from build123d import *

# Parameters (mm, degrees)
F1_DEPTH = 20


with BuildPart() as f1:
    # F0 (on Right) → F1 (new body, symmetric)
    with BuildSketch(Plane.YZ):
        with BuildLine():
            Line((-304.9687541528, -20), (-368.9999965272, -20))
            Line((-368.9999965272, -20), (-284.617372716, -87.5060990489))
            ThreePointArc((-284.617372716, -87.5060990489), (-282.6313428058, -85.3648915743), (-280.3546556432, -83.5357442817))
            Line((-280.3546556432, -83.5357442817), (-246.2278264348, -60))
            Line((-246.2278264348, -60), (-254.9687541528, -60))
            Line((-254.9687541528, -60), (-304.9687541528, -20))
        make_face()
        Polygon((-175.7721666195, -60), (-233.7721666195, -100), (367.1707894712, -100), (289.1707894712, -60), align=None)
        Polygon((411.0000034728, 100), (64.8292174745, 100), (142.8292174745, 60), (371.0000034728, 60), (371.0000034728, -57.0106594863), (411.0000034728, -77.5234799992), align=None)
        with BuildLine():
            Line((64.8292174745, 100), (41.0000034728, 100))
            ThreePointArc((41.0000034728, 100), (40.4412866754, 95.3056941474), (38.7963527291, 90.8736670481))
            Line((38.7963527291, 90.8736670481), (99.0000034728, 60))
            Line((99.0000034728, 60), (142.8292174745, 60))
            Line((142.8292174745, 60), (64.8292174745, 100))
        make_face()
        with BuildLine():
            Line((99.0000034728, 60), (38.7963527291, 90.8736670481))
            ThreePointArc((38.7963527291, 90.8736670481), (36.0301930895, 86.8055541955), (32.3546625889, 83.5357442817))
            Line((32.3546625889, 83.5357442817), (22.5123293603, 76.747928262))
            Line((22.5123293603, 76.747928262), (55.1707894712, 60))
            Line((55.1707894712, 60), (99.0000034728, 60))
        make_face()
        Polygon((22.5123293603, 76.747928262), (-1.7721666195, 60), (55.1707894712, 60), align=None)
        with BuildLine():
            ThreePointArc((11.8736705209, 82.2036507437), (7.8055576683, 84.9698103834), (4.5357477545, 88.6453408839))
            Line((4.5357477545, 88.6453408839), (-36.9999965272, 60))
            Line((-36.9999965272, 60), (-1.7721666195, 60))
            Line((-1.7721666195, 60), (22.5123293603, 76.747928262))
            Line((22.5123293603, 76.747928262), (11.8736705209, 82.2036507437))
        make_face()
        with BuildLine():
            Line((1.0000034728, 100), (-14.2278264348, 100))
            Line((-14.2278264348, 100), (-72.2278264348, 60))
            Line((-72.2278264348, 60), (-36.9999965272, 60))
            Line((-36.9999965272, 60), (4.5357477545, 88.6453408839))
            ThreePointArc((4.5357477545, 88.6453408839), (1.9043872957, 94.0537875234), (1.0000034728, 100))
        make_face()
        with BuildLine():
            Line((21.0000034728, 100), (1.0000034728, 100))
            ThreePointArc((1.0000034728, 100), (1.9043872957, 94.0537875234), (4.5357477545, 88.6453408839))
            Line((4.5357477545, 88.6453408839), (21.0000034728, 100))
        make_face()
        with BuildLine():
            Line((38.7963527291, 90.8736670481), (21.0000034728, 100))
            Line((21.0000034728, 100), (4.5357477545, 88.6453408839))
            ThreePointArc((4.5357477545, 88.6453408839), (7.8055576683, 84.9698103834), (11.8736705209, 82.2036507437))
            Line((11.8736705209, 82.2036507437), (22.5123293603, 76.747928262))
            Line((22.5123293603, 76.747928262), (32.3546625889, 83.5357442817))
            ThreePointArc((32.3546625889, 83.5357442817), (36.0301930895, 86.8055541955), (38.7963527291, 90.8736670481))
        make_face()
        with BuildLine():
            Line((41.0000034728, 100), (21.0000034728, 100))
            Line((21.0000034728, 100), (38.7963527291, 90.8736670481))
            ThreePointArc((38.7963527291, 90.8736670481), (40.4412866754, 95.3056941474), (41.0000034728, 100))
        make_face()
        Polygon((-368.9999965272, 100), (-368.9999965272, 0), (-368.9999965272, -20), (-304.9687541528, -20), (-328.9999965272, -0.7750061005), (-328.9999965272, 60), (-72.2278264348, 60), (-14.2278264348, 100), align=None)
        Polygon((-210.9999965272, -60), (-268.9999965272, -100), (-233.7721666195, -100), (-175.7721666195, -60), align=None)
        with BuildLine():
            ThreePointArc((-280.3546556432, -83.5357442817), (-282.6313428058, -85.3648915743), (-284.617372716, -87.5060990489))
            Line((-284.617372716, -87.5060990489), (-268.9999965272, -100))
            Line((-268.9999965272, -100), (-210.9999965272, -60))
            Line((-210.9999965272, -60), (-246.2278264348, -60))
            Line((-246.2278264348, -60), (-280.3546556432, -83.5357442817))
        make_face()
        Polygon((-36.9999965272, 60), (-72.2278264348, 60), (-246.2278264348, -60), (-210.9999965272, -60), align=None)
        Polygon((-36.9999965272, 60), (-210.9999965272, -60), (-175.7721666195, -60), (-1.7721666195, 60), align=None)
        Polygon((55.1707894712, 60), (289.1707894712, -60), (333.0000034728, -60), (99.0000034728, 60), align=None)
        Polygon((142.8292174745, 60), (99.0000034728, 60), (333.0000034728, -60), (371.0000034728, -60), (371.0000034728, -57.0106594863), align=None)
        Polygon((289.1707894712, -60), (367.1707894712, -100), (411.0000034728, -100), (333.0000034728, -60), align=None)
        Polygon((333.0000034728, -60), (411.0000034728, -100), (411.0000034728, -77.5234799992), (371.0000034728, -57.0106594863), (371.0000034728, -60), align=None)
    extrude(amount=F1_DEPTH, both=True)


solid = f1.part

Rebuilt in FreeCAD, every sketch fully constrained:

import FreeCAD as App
import Part
import Sketcher

V = App.Vector

doc = App.newDocument("Part")
body = doc.addObject("PartDesign::Body", "Body")

sketch1 = doc.addObject("Sketcher::SketchObject", "Sketch")
body.addObject(sketch1)
sketch1.AttachmentSupport = (doc.YZ_Plane, [""])
sketch1.MapMode = "FlatFace"
sketch1.addGeometry([
    Part.LineSegment(V(-269, -100, 0), V(411, -100, 0)),
    Part.LineSegment(V(411, -100, 0), V(411, 100, 0)),
    Part.LineSegment(V(411, 100, 0), V(-369, 100, 0)),
    Part.LineSegment(V(-369, 100, 0), V(-369, -20, 0)),
    Part.LineSegment(V(-369, -20, 0), V(-285, -88, 0)),
    Part.LineSegment(V(-285, -88, 0), V(-269, -100, 0)),
    Part.LineSegment(V(-246, -60, 0), V(-255, -60, 0)),
    Part.LineSegment(V(-255, -60, 0), V(-329, -1, 0)),
    Part.LineSegment(V(-329, -1, 0), V(-329, 60, 0)),
    Part.LineSegment(V(-329, 60, 0), V(-72, 60, 0)),
    Part.LineSegment(V(-72, 60, 0), V(-246, -60, 0)),
    Part.LineSegment(V(55, 60, 0), V(289, -60, 0)),
    Part.LineSegment(V(289, -60, 0), V(-176, -60, 0)),
    Part.LineSegment(V(-176, -60, 0), V(-2, 60, 0)),
    Part.LineSegment(V(-2, 60, 0), V(55, 60, 0)),
    Part.LineSegment(V(371, 60, 0), V(371, -57, 0)),
    Part.LineSegment(V(371, -57, 0), V(143, 60, 0)),
    Part.LineSegment(V(143, 60, 0), V(371, 60, 0)),
], False)
sketch1.addConstraint([
    Sketcher.Constraint("Coincident", 0, 2, 1, 1),
    Sketcher.Constraint("Coincident", 1, 2, 2, 1),
    Sketcher.Constraint("Coincident", 2, 2, 3, 1),
    Sketcher.Constraint("Coincident", 3, 2, 4, 1),
    Sketcher.Constraint("Coincident", 4, 2, 5, 1),
    Sketcher.Constraint("Coincident", 5, 2, 0, 1),
    Sketcher.Constraint("Coincident", 6, 2, 7, 1),
    Sketcher.Constraint("Coincident", 7, 2, 8, 1),
    Sketcher.Constraint("Coincident", 8, 2, 9, 1),
    Sketcher.Constraint("Coincident", 9, 2, 10, 1),
    Sketcher.Constraint("Coincident", 10, 2, 6, 1),
    Sketcher.Constraint("Coincident", 11, 2, 12, 1),
    Sketcher.Constraint("Coincident", 12, 2, 13, 1),
    Sketcher.Constraint("Coincident", 13, 2, 14, 1),
    Sketcher.Constraint("Coincident", 14, 2, 11, 1),
    Sketcher.Constraint("Coincident", 15, 2, 16, 1),
    Sketcher.Constraint("Coincident", 16, 2, 17, 1),
    Sketcher.Constraint("Coincident", 17, 2, 15, 1),
    Sketcher.Constraint("Horizontal", 0),
    Sketcher.Constraint("Vertical", 1),
    Sketcher.Constraint("Horizontal", 2),
    Sketcher.Constraint("Vertical", 3),
    Sketcher.Constraint("Horizontal", 6),
    Sketcher.Constraint("Vertical", 8),
    Sketcher.Constraint("Horizontal", 9),
    Sketcher.Constraint("Horizontal", 12),
    Sketcher.Constraint("Horizontal", 14),
    Sketcher.Constraint("Vertical", 15),
    Sketcher.Constraint("Horizontal", 17),
    Sketcher.Constraint("Parallel", 4, 5),
    Sketcher.Constraint("Parallel", 5, 7),
    Sketcher.Constraint("Parallel", 10, 13),
    Sketcher.Constraint("Parallel", 11, 16),
    Sketcher.Constraint("Horizontal", 10, 2, 11, 2),
    Sketcher.Constraint("Horizontal", 9, 2, 13, 2),
    Sketcher.Constraint("Horizontal", 14, 2, 16, 2),
    Sketcher.Constraint("DistanceX", 0, 1, 0, 2, 680.0),
    Sketcher.Constraint("DistanceX", 2, 2, 2, 1, 780.0),
    Sketcher.Constraint("DistanceY", 1, 1, 1, 2, 200.0),
    Sketcher.Constraint("DistanceY", 3, 2, 3, 1, 120.0),
    Sketcher.Constraint("Distance", 5, 20.0),
    Sketcher.Constraint("DistanceY", 0, 2, -1, 1, 100.0),
    Sketcher.Constraint("DistanceY", 6, 2, -1, 1, 60.0),
    Sketcher.Constraint("DistanceY", -1, 1, 8, 2, 60.0),
    Sketcher.Constraint("DistanceX", 3, 2, 7, 2, 40.0),
    Sketcher.Constraint("DistanceX", 12, 2, 13, 2, 174.0),
    Sketcher.Constraint("DistanceX", 14, 2, 11, 2, 234.0),
    Sketcher.Constraint("DistanceX", 15, 2, 0, 2, 40.0),
    Sketcher.Constraint("DistanceX", 9, 1, 9, 2, 256.77217),
    Sketcher.Constraint("DistanceY", 15, 2, 15, 1, 117.010659),
    Sketcher.Constraint("Distance", 7, 94.806248),
    Sketcher.Constraint("DistanceX", 12, 2, 12, 1, 464.942956),
    Sketcher.Constraint("DistanceX", -1, 1, 11, 2, 289.170789),
    Sketcher.Constraint("DistanceX", 10, 2, 12, 2, 70.45566),
])
pad1 = doc.addObject("PartDesign::Pad", "Pad")
body.addObject(pad1)
pad1.Profile = sketch1
pad1.Length = 40
pad1.Midplane = True

doc.recompute()
